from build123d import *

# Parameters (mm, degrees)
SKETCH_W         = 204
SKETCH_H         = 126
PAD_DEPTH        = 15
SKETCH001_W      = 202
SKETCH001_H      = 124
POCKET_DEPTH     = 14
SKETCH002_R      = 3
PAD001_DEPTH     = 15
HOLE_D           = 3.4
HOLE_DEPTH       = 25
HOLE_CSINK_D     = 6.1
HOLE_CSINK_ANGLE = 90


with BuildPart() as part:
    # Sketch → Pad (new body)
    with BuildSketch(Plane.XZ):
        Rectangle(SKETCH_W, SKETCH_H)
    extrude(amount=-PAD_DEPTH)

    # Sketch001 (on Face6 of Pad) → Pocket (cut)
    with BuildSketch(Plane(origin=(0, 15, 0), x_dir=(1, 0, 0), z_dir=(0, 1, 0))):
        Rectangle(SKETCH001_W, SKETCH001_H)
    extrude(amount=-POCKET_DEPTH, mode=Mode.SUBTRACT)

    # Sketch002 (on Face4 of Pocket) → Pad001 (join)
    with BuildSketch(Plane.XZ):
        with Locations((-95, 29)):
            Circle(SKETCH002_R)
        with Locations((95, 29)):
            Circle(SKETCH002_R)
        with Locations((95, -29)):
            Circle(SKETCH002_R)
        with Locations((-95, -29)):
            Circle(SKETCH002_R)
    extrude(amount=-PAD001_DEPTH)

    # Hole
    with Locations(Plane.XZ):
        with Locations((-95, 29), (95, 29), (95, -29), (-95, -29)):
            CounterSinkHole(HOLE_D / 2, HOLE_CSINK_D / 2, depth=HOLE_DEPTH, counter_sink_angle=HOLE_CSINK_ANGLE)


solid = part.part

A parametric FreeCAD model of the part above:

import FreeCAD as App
import Part
import Sketcher
from FreeCAD import Vector
Q = App.Units.Quantity


def add_polygon(sketch, points):
    """Adds a closed chain of lines whose ends are joined by coincident constraints."""
    first, n = sketch.GeometryCount, len(points)
    for a, b in zip(points, points[1:] + points[:1]):
        sketch.addGeometry(Part.LineSegment(App.Vector(*a, 0), App.Vector(*b, 0)), False)
    for i in range(n):
        sketch.addConstraint(Sketcher.Constraint("Coincident", first + i, 2, first + (i + 1) % n, 1))

doc = App.newDocument("Part")
params = doc.addObject("Spreadsheet::Sheet", "Params")
for row, (alias, value) in enumerate([
    ("sketch1_width", "204 mm"),
    ("sketch1_height", "126 mm"),
    ("pad1_length", "15 mm"),
    ("sketch2_width", "202 mm"),
    ("sketch2_height", "124 mm"),
    ("pocket1_length", "14 mm"),
    ("sketch3_diameter", "6 mm"),
    ("pad2_length", "15 mm"),
    ("sketch4_diameter", "3.4 mm"),
    ("hole_diameter", "3.4 mm"),
    ("hole_depth", "25 mm"),
    ("hole_csink_diameter", "6.1 mm"),
], start=1):
    params.set(f"A{row}", alias)
    params.set(f"B{row}", "=" + value)
    params.setAlias(f"B{row}", alias)

body = doc.addObject("PartDesign::Body", "Body")

# Sketch on XZ plane
sketch1 = doc.addObject("Sketcher::SketchObject", "Sketch")
body.addObject(sketch1)
sketch1.AttachmentSupport = (doc.XZ_Plane, [""])
sketch1.MapMode = "FlatFace"
add_polygon(sketch1, [(-102, 63), (-102, -63), (102, -63), (102, 63)])  # lines 0-3
sketch1.addConstraint(Sketcher.Constraint("Vertical", 0))
sketch1.addConstraint(Sketcher.Constraint("Horizontal", 1))
sketch1.addConstraint(Sketcher.Constraint("Vertical", 2))
sketch1.addConstraint(Sketcher.Constraint("Horizontal", 3))
sketch1.addConstraint(Sketcher.Constraint("Symmetric", 0, 2, 2, 2, -1, 1))
sketch1.addConstraint(Sketcher.Constraint("DistanceX", 1, 1, 1, 2, Q("204 mm")))
sketch1.addConstraint(Sketcher.Constraint("DistanceY", 0, 2, 0, 1, Q("126 mm")))
sketch1.setExpression("Constraints[9]", "Params.sketch1_width")
sketch1.setExpression("Constraints[10]", "Params.sketch1_height")
pad1 = doc.addObject("PartDesign::Pad", "Pad")
body.addObject(pad1)
pad1.Profile = sketch1
pad1.setExpression("Length", "Params.pad1_length")
pad1.Reversed = True

# Sketch on XZ plane
sketch2 = doc.addObject("Sketcher::SketchObject", "Sketch001")
body.addObject(sketch2)
sketch2.AttachmentSupport = (doc.XZ_Plane, [""])
sketch2.MapMode = "FlatFace"
sketch2.AttachmentOffset = App.Placement(Vector(0, 0, -15), App.Rotation())
add_polygon(sketch2, [(-101, -62), (-101, 62), (101, 62), (101, -62)])  # lines 0-3
sketch2.addConstraint(Sketcher.Constraint("Vertical", 0))
sketch2.addConstraint(Sketcher.Constraint("Horizontal", 1))
sketch2.addConstraint(Sketcher.Constraint("Vertical", 2))
sketch2.addConstraint(Sketcher.Constraint("Horizontal", 3))
sketch2.addConstraint(Sketcher.Constraint("Symmetric", 0, 2, 2, 2, -1, 1))
sketch2.addConstraint(Sketcher.Constraint("DistanceX", 1, 1, 1, 2, Q("202 mm")))
sketch2.addConstraint(Sketcher.Constraint("DistanceY", 0, 1, 0, 2, Q("124 mm")))
sketch2.setExpression("Constraints[9]", "Params.sketch2_width")
sketch2.setExpression("Constraints[10]", "Params.sketch2_height")
pocket1 = doc.addObject("PartDesign::Pocket", "Pocket")
body.addObject(pocket1)
pocket1.Profile = sketch2
pocket1.setExpression("Length", "Params.pocket1_length")
pocket1.Reversed = True

# Sketch on XZ plane
sketch3 = doc.addObject("Sketcher::SketchObject", "Sketch002")
body.addObject(sketch3)
sketch3.AttachmentSupport = (doc.XZ_Plane, [""])
sketch3.MapMode = "FlatFace"
sketch3.addGeometry(Part.Circle(Vector(-95, 29, 0), Vector(0, 0, 1), 3), False)
sketch3.addGeometry(Part.Circle(Vector(95, 29, 0), Vector(0, 0, 1), 3), False)
sketch3.addGeometry(Part.Circle(Vector(95, -29, 0), Vector(0, 0, 1), 3), False)
sketch3.addGeometry(Part.Circle(Vector(-95, -29, 0), Vector(0, 0, 1), 3), False)
sketch3.addConstraint(Sketcher.Constraint("Equal", 0, 1))
sketch3.addConstraint(Sketcher.Constraint("Equal", 1, 2))
sketch3.addConstraint(Sketcher.Constraint("Equal", 2, 3))
sketch3.addConstraint(Sketcher.Constraint("Symmetric", 0, 3, 2, 3, -1, 1))
sketch3.addConstraint(Sketcher.Constraint("Symmetric", 1, 3, 3, 3, -1, 1))
sketch3.addConstraint(Sketcher.Constraint("Symmetric", 0, 3, 1, 3, -2))
sketch3.addConstraint(Sketcher.Constraint("Diameter", 0, Q("6 mm")))
sketch3.addConstraint(Sketcher.Constraint("DistanceX", 0, 3, -1, 1, Q("95 mm")))
sketch3.addConstraint(Sketcher.Constraint("DistanceY", -1, 1, 0, 3, Q("29 mm")))
sketch3.setExpression("Constraints[6]", "Params.sketch3_diameter")
pad2 = doc.addObject("PartDesign::Pad", "Pad001")
body.addObject(pad2)
pad2.Profile = sketch3
pad2.setExpression("Length", "Params.pad2_length")
pad2.Reversed = True

# Sketch on XZ plane
sketch4 = doc.addObject("Sketcher::SketchObject", "Sketch003")
body.addObject(sketch4)
sketch4.AttachmentSupport = (doc.XZ_Plane, [""])
sketch4.MapMode = "FlatFace"
sketch4.addGeometry(Part.Circle(Vector(-95, 29, 0), Vector(0, 0, 1), 1.7), False)
sketch4.addGeometry(Part.Circle(Vector(95, 29, 0), Vector(0, 0, 1), 1.7), False)
sketch4.addGeometry(Part.Circle(Vector(95, -29, 0), Vector(0, 0, 1), 1.7), False)
sketch4.addGeometry(Part.Circle(Vector(-95, -29, 0), Vector(0, 0, 1), 1.7), False)
sketch4.addConstraint(Sketcher.Constraint("Equal", 0, 1))
sketch4.addConstraint(Sketcher.Constraint("Equal", 1, 2))
sketch4.addConstraint(Sketcher.Constraint("Equal", 2, 3))
sketch4.addConstraint(Sketcher.Constraint("Symmetric", 0, 3, 2, 3, -1, 1))
sketch4.addConstraint(Sketcher.Constraint("Symmetric", 1, 3, 3, 3, -1, 1))
sketch4.addConstraint(Sketcher.Constraint("Symmetric", 0, 3, 1, 3, -2))
sketch4.addConstraint(Sketcher.Constraint("Diameter", 0, Q("3.4 mm")))
sketch4.addConstraint(Sketcher.Constraint("DistanceX", 0, 3, -1, 1, Q("95 mm")))
sketch4.addConstraint(Sketcher.Constraint("DistanceY", -1, 1, 0, 3, Q("29 mm")))
sketch4.setExpression("Constraints[6]", "Params.sketch4_diameter")
doc.recompute()
hole = doc.addObject("PartDesign::Hole", "Hole")
body.addObject(hole)
hole.Profile = sketch4
hole.ThreadType = "None"
hole.setExpression("Diameter", "Params.hole_diameter")
hole.DepthType = "Dimension"
hole.setExpression("Depth", "Params.hole_depth")
hole.DrillPoint = "Flat"
hole.HoleCutType = "Countersink"
hole.setExpression("HoleCutDiameter", "Params.hole_csink_diameter")
hole.HoleCutCountersinkAngle = 90

doc.recompute()
